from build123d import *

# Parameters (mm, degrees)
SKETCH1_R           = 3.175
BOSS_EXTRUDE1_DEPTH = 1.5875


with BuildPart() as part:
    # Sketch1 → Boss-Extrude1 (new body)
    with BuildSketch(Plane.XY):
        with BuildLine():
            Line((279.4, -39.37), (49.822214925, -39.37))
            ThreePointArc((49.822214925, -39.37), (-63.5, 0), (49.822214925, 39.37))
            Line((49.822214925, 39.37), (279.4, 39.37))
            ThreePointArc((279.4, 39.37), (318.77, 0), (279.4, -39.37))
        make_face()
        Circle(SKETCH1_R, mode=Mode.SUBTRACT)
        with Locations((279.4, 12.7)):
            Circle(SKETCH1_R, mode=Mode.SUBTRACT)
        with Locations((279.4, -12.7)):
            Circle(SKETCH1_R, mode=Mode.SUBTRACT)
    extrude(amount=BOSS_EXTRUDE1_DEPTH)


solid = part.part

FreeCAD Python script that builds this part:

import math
import FreeCAD as App
import Part
import Sketcher
Q = App.Units.Quantity

doc = App.newDocument("Part")
body = doc.addObject("PartDesign::Body", "Body")

# Sketch on XY plane
sketch1 = doc.addObject("Sketcher::SketchObject", "Sketch")
body.addObject(sketch1)
sketch1.AttachmentSupport = (doc.XY_Plane, [""])
sketch1.MapMode = "FlatFace"
sketch1.addGeometry([
    Part.LineSegment(App.Vector(49.8, -39.4, 0), App.Vector(279.4, -39.4, 0)),  # 0
    Part.ArcOfCircle(Part.Circle(App.Vector(279.4, 0, 0), App.Vector(0, 0, 1), 39.4), math.radians(-90), math.radians(90)),  # 1
    Part.LineSegment(App.Vector(279.4, 39.4, 0), App.Vector(49.8, 39.4, 0)),  # 2
    Part.ArcOfCircle(Part.Circle(App.Vector(0, 0, 0), App.Vector(0, 0, 1), 63.5), math.radians(38), math.radians(322)),  # 3
    Part.Circle(App.Vector(279.4, -12.7, 0), App.Vector(0, 0, 1), 3.2),  # 4
    Part.Circle(App.Vector(279.4, 12.7, 0), App.Vector(0, 0, 1), 3.2),  # 5
    Part.Circle(App.Vector(0, 0, 0), App.Vector(0, 0, 1), 3.2),  # 6
], False)
sketch1.addConstraint([
    Sketcher.Constraint("Tangent", 0, 2, 1, 1),
    Sketcher.Constraint("Tangent", 1, 2, 2, 1),
    Sketcher.Constraint("Coincident", 2, 2, 3, 1),
    Sketcher.Constraint("Coincident", 3, 2, 0, 1),
    Sketcher.Constraint("Horizontal", 0),
    Sketcher.Constraint("Horizontal", 2),
    Sketcher.Constraint("Coincident", 3, 3, -1, 1),
    Sketcher.Constraint("Coincident", 6, 3, -1, 1),
    Sketcher.Constraint("Equal", 4, 5),
    Sketcher.Constraint("Equal", 5, 6),
    Sketcher.Constraint("Symmetric", 4, 3, 5, 3, -1),
    Sketcher.Constraint("PointOnObject", 1, 3, -1),
    Sketcher.Constraint("Vertical", 1, 3, 4, 3),
    Sketcher.Constraint("Radius", 3, Q("2.5 in")),
    Sketcher.Constraint("Diameter", 4, Q("0.25 in")),
    Sketcher.Constraint("Radius", 1, Q("1.55 in")),
    Sketcher.Constraint("DistanceX", -1, 1, 1, 3, Q("11 in")),
    Sketcher.Constraint("DistanceY", 4, 3, 5, 3, Q("1 in")),
])
pad1 = doc.addObject("PartDesign::Pad", "Pad")
body.addObject(pad1)
pad1.Profile = sketch1
pad1.Length = Q("0.0625 in")

doc.recompute()
